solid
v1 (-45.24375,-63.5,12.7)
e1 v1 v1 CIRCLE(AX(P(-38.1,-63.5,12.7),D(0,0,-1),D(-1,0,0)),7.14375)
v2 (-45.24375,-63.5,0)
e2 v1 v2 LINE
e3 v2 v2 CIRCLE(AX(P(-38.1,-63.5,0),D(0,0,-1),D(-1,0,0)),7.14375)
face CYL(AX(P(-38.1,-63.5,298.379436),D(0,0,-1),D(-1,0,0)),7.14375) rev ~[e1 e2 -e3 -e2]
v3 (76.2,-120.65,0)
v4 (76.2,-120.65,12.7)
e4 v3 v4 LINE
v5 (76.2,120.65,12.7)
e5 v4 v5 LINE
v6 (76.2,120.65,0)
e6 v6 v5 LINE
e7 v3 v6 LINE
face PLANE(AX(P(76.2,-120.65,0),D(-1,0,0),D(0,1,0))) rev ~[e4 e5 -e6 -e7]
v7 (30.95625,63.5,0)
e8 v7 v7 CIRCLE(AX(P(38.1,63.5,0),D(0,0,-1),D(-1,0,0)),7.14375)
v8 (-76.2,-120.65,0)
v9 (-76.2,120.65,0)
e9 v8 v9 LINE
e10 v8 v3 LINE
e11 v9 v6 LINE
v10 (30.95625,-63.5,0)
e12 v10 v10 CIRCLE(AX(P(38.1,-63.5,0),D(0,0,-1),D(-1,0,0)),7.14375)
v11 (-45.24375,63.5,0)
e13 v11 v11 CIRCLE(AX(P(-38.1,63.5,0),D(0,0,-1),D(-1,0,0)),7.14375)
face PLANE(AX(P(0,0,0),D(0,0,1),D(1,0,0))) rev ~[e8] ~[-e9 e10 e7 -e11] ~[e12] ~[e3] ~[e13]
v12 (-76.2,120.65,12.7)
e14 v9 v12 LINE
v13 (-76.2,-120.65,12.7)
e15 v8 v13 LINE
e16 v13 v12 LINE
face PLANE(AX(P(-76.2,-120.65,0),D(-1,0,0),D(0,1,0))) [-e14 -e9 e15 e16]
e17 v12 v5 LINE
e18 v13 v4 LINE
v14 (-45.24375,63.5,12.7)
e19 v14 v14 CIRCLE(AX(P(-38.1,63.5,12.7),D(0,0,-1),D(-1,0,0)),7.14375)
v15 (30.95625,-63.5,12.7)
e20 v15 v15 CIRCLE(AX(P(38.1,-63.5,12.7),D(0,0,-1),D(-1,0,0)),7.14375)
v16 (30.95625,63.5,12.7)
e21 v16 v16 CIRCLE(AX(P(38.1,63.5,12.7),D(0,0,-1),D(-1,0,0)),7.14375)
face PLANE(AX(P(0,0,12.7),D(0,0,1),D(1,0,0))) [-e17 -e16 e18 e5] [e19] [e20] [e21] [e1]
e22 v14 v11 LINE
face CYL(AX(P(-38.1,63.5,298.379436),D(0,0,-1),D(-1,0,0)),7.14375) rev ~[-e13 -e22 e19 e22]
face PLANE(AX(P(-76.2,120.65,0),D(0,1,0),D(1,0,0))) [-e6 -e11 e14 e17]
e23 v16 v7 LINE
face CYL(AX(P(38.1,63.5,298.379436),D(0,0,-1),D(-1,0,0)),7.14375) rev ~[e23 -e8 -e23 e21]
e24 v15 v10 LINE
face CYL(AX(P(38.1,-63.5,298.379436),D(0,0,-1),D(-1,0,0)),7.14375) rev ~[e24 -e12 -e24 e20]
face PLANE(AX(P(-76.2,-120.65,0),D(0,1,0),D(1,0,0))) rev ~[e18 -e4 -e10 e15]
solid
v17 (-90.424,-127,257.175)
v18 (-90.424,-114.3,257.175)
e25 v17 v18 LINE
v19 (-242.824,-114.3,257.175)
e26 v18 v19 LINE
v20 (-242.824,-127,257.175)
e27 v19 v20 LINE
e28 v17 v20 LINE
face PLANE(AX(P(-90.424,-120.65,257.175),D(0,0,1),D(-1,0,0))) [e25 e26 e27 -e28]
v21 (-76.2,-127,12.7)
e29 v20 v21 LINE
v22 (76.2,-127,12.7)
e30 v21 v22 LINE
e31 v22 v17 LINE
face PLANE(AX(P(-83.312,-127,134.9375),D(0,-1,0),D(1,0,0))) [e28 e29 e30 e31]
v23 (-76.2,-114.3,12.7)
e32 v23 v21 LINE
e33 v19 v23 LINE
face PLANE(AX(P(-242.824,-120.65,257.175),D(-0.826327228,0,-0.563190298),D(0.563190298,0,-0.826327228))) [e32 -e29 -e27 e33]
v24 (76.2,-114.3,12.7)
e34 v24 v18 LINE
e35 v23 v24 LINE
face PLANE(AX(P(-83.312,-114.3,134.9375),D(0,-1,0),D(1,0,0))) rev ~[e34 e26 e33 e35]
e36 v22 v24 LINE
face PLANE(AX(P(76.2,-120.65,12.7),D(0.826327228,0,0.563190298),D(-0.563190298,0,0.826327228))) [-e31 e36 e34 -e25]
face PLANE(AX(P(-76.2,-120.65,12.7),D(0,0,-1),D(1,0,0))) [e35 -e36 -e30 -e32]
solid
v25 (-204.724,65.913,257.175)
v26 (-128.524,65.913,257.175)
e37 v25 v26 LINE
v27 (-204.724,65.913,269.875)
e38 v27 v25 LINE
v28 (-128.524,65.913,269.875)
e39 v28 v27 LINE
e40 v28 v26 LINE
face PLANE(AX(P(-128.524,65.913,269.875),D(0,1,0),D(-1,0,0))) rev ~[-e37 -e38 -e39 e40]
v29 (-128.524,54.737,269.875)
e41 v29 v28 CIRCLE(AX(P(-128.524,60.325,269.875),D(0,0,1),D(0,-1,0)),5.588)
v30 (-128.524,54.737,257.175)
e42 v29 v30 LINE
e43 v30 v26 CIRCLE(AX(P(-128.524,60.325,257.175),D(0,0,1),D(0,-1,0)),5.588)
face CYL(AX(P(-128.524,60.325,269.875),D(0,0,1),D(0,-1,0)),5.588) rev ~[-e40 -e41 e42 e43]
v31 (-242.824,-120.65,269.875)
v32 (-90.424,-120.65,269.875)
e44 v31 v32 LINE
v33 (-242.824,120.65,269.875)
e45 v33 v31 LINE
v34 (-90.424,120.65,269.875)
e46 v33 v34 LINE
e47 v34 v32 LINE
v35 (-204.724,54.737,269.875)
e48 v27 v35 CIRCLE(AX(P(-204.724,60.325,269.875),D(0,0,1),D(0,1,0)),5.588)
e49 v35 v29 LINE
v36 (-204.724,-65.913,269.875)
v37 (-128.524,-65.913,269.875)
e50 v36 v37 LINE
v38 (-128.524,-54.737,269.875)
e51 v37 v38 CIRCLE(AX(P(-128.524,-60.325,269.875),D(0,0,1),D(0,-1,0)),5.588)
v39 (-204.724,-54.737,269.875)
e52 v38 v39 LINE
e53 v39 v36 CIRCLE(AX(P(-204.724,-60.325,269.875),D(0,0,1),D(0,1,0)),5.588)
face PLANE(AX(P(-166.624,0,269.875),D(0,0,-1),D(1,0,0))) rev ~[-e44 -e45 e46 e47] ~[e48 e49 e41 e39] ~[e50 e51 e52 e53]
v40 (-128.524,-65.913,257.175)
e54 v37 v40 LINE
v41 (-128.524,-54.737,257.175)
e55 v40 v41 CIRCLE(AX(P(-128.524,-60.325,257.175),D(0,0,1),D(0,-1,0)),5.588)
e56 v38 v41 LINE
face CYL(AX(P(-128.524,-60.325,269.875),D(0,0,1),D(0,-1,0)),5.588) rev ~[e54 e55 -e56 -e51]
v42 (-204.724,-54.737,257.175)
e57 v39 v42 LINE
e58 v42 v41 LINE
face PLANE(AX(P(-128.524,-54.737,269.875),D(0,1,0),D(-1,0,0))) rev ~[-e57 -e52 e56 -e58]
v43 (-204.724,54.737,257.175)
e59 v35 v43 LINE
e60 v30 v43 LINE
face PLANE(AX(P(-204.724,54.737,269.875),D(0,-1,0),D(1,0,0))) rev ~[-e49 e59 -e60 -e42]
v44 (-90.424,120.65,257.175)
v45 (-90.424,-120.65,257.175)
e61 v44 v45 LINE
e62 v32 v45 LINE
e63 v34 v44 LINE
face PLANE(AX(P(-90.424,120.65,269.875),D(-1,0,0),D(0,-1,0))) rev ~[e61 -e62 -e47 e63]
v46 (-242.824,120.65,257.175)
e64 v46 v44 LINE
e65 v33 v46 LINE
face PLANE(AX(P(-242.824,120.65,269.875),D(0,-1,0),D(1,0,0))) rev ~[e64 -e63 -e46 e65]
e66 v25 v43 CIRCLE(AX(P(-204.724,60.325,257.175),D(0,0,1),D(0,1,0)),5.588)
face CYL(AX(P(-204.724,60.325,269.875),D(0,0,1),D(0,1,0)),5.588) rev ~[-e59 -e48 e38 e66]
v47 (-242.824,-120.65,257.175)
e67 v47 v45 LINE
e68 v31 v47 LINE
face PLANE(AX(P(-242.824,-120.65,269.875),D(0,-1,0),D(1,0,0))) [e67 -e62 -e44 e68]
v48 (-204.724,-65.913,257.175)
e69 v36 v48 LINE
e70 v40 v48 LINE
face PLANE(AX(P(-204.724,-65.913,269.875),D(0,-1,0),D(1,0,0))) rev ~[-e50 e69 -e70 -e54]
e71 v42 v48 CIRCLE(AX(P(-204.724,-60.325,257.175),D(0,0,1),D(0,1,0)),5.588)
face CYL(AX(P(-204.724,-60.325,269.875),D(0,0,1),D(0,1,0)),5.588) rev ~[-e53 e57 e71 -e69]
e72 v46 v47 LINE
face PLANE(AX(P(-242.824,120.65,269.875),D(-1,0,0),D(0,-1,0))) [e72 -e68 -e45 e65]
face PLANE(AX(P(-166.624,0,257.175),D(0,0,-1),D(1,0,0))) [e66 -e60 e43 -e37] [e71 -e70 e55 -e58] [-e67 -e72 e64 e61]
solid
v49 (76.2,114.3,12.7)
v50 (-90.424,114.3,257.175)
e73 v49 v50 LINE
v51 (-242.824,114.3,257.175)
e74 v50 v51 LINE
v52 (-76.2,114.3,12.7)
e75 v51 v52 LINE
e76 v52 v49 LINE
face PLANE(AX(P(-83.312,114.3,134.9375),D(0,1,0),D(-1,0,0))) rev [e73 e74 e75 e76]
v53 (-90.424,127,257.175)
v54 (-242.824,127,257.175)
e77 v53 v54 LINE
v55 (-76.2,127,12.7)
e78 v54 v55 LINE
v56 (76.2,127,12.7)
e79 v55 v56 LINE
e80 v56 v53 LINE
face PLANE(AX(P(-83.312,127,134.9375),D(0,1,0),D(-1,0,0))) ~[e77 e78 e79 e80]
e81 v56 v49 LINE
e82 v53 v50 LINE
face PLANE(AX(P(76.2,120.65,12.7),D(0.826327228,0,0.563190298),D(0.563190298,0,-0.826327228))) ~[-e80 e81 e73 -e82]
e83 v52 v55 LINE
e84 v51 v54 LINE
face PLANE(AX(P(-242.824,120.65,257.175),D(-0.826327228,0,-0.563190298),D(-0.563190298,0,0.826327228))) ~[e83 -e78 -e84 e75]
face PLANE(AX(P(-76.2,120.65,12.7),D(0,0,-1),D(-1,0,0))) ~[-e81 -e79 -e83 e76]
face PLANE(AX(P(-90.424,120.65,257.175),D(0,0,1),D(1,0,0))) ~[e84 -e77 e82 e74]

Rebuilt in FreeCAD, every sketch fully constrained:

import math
import FreeCAD as App
import Part
import Sketcher
Q = App.Units.Quantity


def add_polygon(sketch, points):
    """Adds a closed chain of lines whose ends are joined by coincident constraints."""
    first, n = sketch.GeometryCount, len(points)
    for a, b in zip(points, points[1:] + points[:1]):
        sketch.addGeometry(Part.LineSegment(App.Vector(*a, 0), App.Vector(*b, 0)), False)
    for i in range(n):
        sketch.addConstraint(Sketcher.Constraint("Coincident", first + i, 2, first + (i + 1) % n, 1))

doc = App.newDocument("Part")
body = doc.addObject("PartDesign::Body", "Body")

# Sketch on XY plane
sketch1 = body.newObject("Sketcher::SketchObject", "Sketch")
sketch1.AttachmentSupport = (doc.getObject("XY_Plane"), [""])
sketch1.MapMode = "FlatFace"
add_polygon(sketch1, [(-76.2, 120.65), (-76.2, -120.65), (76.2, -120.65), (76.2, 120.65)])  # lines 0-3
sketch1.addConstraint([
    Sketcher.Constraint("Vertical", 0),
    Sketcher.Constraint("Horizontal", 1),
    Sketcher.Constraint("Vertical", 2),
    Sketcher.Constraint("Horizontal", 3),
    Sketcher.Constraint("Symmetric", 0, 2, 2, 2, -1, 1),
    Sketcher.Constraint("DistanceX", 1, 1, 1, 2, Q("6 in")),
    Sketcher.Constraint("DistanceY", 0, 2, 0, 1, Q("9.5 in")),
])
pad1 = body.newObject("PartDesign::Pad", "Pad")
pad1.Profile = sketch1
pad1.Length = Q("0.5 in")

# Sketch on XY plane
sketch2 = body.newObject("Sketcher::SketchObject", "Sketch001")
sketch2.AttachmentSupport = (doc.getObject("XY_Plane"), [""])
sketch2.MapMode = "FlatFace"
sketch2.AttachmentOffset = App.Placement(App.Vector(0, 0, 0.5 * 25.4), App.Rotation())
sketch2.addGeometry([
    Part.Circle(App.Vector(-38.1, 63.5, 0), App.Vector(0, 0, 1), 7.14375),
    Part.Circle(App.Vector(38.1, 63.5, 0), App.Vector(0, 0, 1), 7.14375),
    Part.Circle(App.Vector(-38.1, -63.5, 0), App.Vector(0, 0, 1), 7.14375),
    Part.Circle(App.Vector(38.1, -63.5, 0), App.Vector(0, 0, 1), 7.14375),
], False)
sketch2.addConstraint([
    Sketcher.Constraint("Equal", 0, 1),
    Sketcher.Constraint("Equal", 1, 2),
    Sketcher.Constraint("Equal", 2, 3),
    Sketcher.Constraint("Symmetric", 1, 3, 2, 3, -1, 1),
    Sketcher.Constraint("Symmetric", 0, 3, 3, 3, -1, 1),
    Sketcher.Constraint("Symmetric", 0, 3, 1, 3, -2),
    Sketcher.Constraint("Diameter", 0, Q("0.5625 in")),
    Sketcher.Constraint("DistanceX", 0, 3, 1, 3, Q("3 in")),
    Sketcher.Constraint("DistanceY", 2, 3, 0, 3, Q("5 in")),
])
doc.recompute()
hole = body.newObject("PartDesign::Hole", "Hole")
hole.Profile = sketch2
hole.ThreadType = "None"
hole.Diameter = Q("0.5625 in")
hole.DepthType = "ThroughAll"
body2 = doc.addObject("PartDesign::Body", "Body001")

# Sketch on XY plane
sketch3 = body2.newObject("Sketcher::SketchObject", "Sketch002")
sketch3.AttachmentSupport = (doc.getObject("XY_Plane001"), [""])
sketch3.MapMode = "FlatFace"
sketch3.AttachmentOffset = App.Placement(App.Vector(0, 0, 10.625 * 25.4), App.Rotation())
add_polygon(sketch3, [(-242.824, -120.65), (-242.824, 120.65), (-90.424, 120.65), (-90.424, -120.65)])  # lines 0-3
sketch3.addConstraint([
    Sketcher.Constraint("Vertical", 0),
    Sketcher.Constraint("Horizontal", 1),
    Sketcher.Constraint("Vertical", 2),
    Sketcher.Constraint("Horizontal", 3),
    Sketcher.Constraint("DistanceX", 1, 1, 1, 2, Q("6 in")),
    Sketcher.Constraint("DistanceY", 0, 1, 0, 2, Q("9.5 in")),
    Sketcher.Constraint("DistanceX", 0, 2, -1, 1, Q("9.56 in")),
    Sketcher.Constraint("DistanceY", -1, 1, 0, 2, Q("4.75 in")),
])
pad2 = body2.newObject("PartDesign::Pad", "Pad001")
pad2.Profile = sketch3
pad2.Length = Q("0.5 in")
pad2.Reversed = True

# Sketch on XY plane
sketch4 = body2.newObject("Sketcher::SketchObject", "Sketch003")
sketch4.AttachmentSupport = (doc.getObject("XY_Plane001"), [""])
sketch4.MapMode = "FlatFace"
sketch4.AttachmentOffset = App.Placement(App.Vector(0, 0, 10.625 * 25.4), App.Rotation())
sketch4.addGeometry([
    Part.ArcOfCircle(Part.Circle(App.Vector(-204.724, 60.325, 0), App.Vector(0, 0, 1), 5.588), math.radians(90), math.radians(270)),  # 0
    Part.LineSegment(App.Vector(-204.724, 54.737, 0), App.Vector(-128.524, 54.737, 0)),  # 1
    Part.ArcOfCircle(Part.Circle(App.Vector(-128.524, 60.325, 0), App.Vector(0, 0, 1), 5.588), math.radians(-90), math.radians(90)),  # 2
    Part.LineSegment(App.Vector(-128.524, 65.913, 0), App.Vector(-204.724, 65.913, 0)),  # 3
    Part.LineSegment(App.Vector(-128.524, -54.737, 0), App.Vector(-204.724, -54.737, 0)),  # 4
    Part.ArcOfCircle(Part.Circle(App.Vector(-204.724, -60.325, 0), App.Vector(0, 0, 1), 5.588), math.radians(90), math.radians(270)),  # 5
    Part.LineSegment(App.Vector(-204.724, -65.913, 0), App.Vector(-128.524, -65.913, 0)),  # 6
    Part.ArcOfCircle(Part.Circle(App.Vector(-128.524, -60.325, 0), App.Vector(0, 0, 1), 5.588), math.radians(-90), math.radians(90)),  # 7
], False)
sketch4.addConstraint([
    Sketcher.Constraint("Tangent", 0, 2, 1, 1),
    Sketcher.Constraint("Tangent", 1, 2, 2, 1),
    Sketcher.Constraint("Tangent", 2, 2, 3, 1),
    Sketcher.Constraint("Tangent", 3, 2, 0, 1),
    Sketcher.Constraint("Tangent", 4, 2, 5, 1),
    Sketcher.Constraint("Tangent", 5, 2, 6, 1),
    Sketcher.Constraint("Tangent", 6, 2, 7, 1),
    Sketcher.Constraint("Tangent", 7, 2, 4, 1),
    Sketcher.Constraint("Horizontal", 1),
    Sketcher.Constraint("Horizontal", 3),
    Sketcher.Constraint("Horizontal", 4),
    Sketcher.Constraint("Horizontal", 6),
    Sketcher.Constraint("Equal", 2, 5),
    Sketcher.Constraint("Symmetric", 0, 3, 5, 3, -1),
    Sketcher.Constraint("Vertical", 2, 3, 7, 3),
    Sketcher.Constraint("DistanceX", 1, 1, 1, 2, Q("3 in")),
    Sketcher.Constraint("Radius", 0, Q("0.22 in")),
    Sketcher.Constraint("DistanceX", 0, 3, -1, 1, Q("8.06 in")),
    Sketcher.Constraint("DistanceY", 5, 3, 0, 3, Q("4.75 in")),
])
pocket1 = body2.newObject("PartDesign::Pocket", "Pocket")
pocket1.Profile = sketch4
pocket1.Type = "ThroughAll"
body3 = doc.addObject("PartDesign::Body", "Body002")

# Sketch on XZ plane
sketch5 = body3.newObject("Sketcher::SketchObject", "Sketch004")
sketch5.AttachmentSupport = (doc.getObject("XZ_Plane002"), [""])
sketch5.MapMode = "FlatFace"
sketch5.AttachmentOffset = App.Placement(App.Vector(0, 0, 4.75 * 25.4), App.Rotation())
add_polygon(sketch5, [(-90.424, 257.175), (-242.824, 257.175), (-76.2, 12.7), (76.2, 12.7)])  # lines 0-3
sketch5.addConstraint([
    Sketcher.Constraint("Horizontal", 0),
    Sketcher.Constraint("Horizontal", 2),
    Sketcher.Constraint("Parallel", 1, 3),
    Sketcher.Constraint("DistanceX", 0, 2, 0, 1, Q("6 in")),
    Sketcher.Constraint("DistanceX", 1, 2, -1, 1, Q("3 in")),
    Sketcher.Constraint("DistanceY", -1, 1, 1, 2, Q("0.5 in")),
    Sketcher.Constraint("DistanceX", 0, 2, -1, 1, Q("9.56 in")),
    Sketcher.Constraint("DistanceY", -1, 1, 0, 2, Q("10.125 in")),
])
pad3 = body3.newObject("PartDesign::Pad", "Pad002")
pad3.Profile = sketch5
pad3.Length = Q("0.5 in")
pad3.Midplane = True
body4 = doc.addObject("PartDesign::Body", "Body003")
doc.recompute()

mirroring = doc.addObject("Part::Mirroring", "Mirroring")
mirroring.Source = body3
mirroring.Base = App.Vector(0, 0, 0)
mirroring.Normal = App.Vector(0, -1, 0)
body4.BaseFeature = mirroring
doc.recompute()
mirroring.Visibility = False

doc.recompute()
